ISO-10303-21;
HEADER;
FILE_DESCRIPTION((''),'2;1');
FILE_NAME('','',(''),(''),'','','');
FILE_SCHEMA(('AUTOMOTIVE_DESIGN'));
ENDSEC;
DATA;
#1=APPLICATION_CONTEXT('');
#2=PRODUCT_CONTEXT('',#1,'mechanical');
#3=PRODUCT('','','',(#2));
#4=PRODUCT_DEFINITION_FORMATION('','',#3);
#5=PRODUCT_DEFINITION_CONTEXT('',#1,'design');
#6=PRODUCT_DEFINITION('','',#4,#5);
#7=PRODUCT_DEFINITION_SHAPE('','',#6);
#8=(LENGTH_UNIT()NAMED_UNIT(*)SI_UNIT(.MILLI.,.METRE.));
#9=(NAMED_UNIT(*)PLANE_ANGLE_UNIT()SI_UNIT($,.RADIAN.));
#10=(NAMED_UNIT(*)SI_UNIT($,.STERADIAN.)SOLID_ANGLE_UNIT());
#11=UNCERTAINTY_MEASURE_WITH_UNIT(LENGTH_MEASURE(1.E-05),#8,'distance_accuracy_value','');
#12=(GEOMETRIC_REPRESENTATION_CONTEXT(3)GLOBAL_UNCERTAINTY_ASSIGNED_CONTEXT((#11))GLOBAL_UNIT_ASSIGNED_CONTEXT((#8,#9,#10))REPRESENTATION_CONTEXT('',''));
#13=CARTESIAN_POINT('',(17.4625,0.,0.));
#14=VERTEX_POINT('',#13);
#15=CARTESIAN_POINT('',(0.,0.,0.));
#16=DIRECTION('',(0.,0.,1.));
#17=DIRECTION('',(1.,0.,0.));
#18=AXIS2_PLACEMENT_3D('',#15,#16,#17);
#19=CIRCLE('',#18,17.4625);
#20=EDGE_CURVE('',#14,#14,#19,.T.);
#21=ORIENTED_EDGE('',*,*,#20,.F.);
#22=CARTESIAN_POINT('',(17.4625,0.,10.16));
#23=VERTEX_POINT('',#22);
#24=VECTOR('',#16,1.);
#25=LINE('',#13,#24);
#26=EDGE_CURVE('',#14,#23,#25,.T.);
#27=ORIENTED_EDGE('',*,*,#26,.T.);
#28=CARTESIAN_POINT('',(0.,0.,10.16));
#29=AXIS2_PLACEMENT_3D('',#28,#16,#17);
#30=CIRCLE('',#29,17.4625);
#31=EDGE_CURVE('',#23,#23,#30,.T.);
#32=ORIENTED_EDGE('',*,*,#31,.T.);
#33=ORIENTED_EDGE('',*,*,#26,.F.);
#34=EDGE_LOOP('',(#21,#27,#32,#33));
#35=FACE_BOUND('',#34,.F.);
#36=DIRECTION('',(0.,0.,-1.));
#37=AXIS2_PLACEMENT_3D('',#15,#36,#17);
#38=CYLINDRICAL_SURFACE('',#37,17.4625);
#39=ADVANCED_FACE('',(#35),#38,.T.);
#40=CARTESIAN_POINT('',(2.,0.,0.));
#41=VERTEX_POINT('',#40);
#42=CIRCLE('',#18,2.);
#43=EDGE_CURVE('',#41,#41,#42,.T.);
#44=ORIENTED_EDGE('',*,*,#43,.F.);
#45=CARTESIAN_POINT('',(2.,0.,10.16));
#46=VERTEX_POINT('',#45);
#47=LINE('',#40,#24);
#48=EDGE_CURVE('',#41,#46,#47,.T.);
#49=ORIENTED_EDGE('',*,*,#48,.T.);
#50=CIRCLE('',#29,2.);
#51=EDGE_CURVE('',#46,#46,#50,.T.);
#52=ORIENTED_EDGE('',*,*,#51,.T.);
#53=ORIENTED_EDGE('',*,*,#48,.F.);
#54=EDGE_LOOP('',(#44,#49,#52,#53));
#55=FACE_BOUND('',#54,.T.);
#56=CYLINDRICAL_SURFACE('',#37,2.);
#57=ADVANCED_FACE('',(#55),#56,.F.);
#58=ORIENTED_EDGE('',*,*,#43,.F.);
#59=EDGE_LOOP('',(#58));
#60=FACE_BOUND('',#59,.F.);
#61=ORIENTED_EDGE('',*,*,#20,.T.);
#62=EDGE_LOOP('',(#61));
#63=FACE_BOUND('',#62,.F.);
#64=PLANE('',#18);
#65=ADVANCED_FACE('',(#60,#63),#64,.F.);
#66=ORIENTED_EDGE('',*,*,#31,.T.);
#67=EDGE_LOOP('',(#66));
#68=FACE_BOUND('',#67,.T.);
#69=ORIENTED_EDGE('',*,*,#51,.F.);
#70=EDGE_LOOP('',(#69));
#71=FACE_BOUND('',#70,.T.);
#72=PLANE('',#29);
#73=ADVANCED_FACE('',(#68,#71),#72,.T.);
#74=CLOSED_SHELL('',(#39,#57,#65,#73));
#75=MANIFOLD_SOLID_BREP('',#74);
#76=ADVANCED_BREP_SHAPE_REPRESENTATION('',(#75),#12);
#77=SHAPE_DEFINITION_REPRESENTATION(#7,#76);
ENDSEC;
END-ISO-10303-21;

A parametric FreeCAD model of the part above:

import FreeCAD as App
import Part
import Sketcher

V = App.Vector
Q = App.Units.Quantity

doc = App.newDocument("Part")
body = doc.addObject("PartDesign::Body", "Body")

sketch1 = body.newObject("Sketcher::SketchObject", "Sketch")
sketch1.AttachmentSupport = (doc.getObject("XY_Plane"), [""])
sketch1.MapMode = "FlatFace"
sketch1.addGeometry([
    Part.Circle(V(0, 0, 0), V(0, 0, 1), 17.5),
    Part.Circle(V(0, 0, 0), V(0, 0, 1), 2),
], False)
sketch1.addConstraint([
    Sketcher.Constraint("Coincident", 0, 3, -1, 1),
    Sketcher.Constraint("Coincident", 1, 3, -1, 1),
    Sketcher.Constraint("Diameter", 0, Q("1.375 in")),
    Sketcher.Constraint("Diameter", 1, 4.0),
])
pad1 = body.newObject("PartDesign::Pad", "Pad")
pad1.Profile = sketch1
pad1.Length = Q("0.4 in")

doc.recompute()
